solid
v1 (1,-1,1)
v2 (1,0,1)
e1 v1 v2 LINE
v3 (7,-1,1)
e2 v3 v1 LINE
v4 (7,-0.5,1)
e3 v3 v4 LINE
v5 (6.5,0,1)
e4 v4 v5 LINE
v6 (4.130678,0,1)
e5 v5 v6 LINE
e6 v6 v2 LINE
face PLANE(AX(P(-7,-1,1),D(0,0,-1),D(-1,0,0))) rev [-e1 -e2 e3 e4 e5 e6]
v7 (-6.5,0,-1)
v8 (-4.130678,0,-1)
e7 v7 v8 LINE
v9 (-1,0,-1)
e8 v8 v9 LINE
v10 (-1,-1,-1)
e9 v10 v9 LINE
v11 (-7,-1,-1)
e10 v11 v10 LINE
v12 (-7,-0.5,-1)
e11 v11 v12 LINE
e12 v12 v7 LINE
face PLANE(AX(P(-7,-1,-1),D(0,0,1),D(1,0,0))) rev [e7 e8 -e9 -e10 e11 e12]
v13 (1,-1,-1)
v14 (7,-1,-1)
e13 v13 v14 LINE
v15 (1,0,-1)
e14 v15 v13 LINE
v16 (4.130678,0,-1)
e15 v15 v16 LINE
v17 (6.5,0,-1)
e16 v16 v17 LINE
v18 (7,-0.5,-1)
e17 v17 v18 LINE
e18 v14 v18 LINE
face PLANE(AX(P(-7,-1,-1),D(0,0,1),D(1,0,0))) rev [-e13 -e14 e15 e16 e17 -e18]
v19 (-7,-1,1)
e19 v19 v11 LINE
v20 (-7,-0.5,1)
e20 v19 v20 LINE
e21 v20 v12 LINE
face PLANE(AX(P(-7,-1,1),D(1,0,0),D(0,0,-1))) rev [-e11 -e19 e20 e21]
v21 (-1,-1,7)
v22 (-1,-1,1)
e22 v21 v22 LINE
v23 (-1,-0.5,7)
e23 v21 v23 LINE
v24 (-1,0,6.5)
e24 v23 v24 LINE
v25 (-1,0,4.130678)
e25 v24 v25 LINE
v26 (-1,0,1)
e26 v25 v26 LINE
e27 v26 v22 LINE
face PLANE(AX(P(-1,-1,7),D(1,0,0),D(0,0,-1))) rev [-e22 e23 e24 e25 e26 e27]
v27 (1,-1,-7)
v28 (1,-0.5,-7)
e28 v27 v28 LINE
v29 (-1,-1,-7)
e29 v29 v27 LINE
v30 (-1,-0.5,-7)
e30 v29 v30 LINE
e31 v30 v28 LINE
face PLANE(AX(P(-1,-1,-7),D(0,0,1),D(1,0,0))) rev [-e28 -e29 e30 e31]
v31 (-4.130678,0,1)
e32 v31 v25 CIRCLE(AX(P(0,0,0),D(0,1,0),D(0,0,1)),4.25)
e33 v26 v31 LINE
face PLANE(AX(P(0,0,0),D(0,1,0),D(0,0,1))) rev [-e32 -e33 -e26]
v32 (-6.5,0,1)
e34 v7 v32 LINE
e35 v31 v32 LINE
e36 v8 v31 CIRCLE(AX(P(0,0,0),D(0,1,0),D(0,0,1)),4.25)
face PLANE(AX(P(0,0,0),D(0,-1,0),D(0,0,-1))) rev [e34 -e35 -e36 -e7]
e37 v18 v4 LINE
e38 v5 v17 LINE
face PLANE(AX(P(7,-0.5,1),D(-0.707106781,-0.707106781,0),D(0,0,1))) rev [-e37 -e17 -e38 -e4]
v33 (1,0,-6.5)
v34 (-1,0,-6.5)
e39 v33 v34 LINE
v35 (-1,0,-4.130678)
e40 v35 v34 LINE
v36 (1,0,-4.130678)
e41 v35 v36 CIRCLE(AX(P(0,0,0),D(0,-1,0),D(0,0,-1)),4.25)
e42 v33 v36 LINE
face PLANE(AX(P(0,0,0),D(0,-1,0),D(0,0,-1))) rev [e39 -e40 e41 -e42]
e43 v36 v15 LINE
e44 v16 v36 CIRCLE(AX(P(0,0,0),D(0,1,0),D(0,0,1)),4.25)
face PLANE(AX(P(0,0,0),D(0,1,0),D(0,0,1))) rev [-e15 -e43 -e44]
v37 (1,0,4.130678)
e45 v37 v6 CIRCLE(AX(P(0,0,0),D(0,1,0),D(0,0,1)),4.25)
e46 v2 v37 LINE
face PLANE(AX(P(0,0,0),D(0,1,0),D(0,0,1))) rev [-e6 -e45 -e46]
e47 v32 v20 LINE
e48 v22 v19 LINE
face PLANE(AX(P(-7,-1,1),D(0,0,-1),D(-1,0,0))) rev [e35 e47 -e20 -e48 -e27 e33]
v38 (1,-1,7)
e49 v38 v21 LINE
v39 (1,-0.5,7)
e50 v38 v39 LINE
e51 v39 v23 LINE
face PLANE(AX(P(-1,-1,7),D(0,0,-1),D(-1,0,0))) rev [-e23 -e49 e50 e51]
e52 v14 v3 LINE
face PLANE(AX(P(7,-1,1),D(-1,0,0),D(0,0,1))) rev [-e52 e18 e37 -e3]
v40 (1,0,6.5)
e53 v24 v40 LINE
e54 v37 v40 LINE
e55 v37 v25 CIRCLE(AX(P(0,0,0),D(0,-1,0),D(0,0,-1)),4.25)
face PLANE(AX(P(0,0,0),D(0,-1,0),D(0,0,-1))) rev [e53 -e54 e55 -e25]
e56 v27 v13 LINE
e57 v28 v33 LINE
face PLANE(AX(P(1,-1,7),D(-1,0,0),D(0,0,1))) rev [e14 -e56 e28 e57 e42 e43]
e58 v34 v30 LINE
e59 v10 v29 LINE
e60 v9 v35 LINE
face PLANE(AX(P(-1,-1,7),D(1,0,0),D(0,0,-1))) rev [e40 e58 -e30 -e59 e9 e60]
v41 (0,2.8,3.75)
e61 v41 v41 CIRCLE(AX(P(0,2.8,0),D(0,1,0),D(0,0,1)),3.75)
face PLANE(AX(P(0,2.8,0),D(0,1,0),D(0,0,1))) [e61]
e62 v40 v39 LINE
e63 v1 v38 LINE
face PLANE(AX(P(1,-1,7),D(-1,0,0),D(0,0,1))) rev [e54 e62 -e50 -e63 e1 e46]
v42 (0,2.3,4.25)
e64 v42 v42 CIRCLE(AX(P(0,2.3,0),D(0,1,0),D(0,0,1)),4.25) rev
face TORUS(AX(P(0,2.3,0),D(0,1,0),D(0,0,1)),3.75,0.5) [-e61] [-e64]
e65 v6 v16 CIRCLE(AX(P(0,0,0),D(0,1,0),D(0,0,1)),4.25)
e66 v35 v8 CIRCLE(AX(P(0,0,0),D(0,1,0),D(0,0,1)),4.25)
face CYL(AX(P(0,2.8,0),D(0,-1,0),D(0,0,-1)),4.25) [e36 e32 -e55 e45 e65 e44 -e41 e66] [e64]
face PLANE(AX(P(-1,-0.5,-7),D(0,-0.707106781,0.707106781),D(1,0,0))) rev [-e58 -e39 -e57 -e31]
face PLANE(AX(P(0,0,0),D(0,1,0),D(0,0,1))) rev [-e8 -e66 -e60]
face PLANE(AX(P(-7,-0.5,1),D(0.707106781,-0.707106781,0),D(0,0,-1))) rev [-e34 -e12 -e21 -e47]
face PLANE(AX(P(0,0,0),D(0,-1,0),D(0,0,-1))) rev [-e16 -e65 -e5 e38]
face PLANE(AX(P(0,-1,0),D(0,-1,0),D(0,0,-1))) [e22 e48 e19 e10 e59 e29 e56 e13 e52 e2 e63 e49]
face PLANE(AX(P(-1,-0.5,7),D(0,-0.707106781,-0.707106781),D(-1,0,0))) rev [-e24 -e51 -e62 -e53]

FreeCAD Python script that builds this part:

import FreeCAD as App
import Part
import Sketcher
from FreeCAD import Vector


def edges_at(feature, points):
    """Names of the edges that pass closest to the given points."""
    edges = feature.Shape.Edges
    near = lambda p: min(range(len(edges)), key=lambda i: edges[i].distToShape(Part.Vertex(*p))[0])
    return sorted({f"Edge{near(p) + 1}" for p in points})

doc = App.newDocument("Part")
body = doc.addObject("PartDesign::Body", "Body")

# Sketch on XZ plane
sketch1 = body.newObject("Sketcher::SketchObject", "Sketch")
sketch1.AttachmentSupport = (doc.getObject("XZ_Plane"), [""])
sketch1.MapMode = "FlatFace"
sketch1.addGeometry(Part.Circle(Vector(0, 0, 0), Vector(0, 0, 1), 4.2), False)
sketch1.addConstraint([
    Sketcher.Constraint("Coincident", 0, 3, -1, 1),
    Sketcher.Constraint("Diameter", 0, 8.5),
])
pad1 = body.newObject("PartDesign::Pad", "Pad")
pad1.Profile = sketch1
pad1.Length = 2.8
pad1.Reversed = True
doc.recompute()

fillet = body.newObject("PartDesign::Fillet", "Fillet")
fillet.Base = (pad1, edges_at(pad1, [(0, 2.8, -4.25)]))
fillet.Radius = 0.5

# Sketch on XZ plane
sketch2 = body.newObject("Sketcher::SketchObject", "Sketch001")
sketch2.AttachmentSupport = (doc.getObject("XZ_Plane"), [""])
sketch2.MapMode = "FlatFace"
sketch2.addGeometry([
    Part.LineSegment(Vector(-7, 1, 0), Vector(-7, -1, 0)),
    Part.LineSegment(Vector(-7, -1, 0), Vector(7, -1, 0)),
    Part.LineSegment(Vector(7, -1, 0), Vector(7, 1, 0)),
    Part.LineSegment(Vector(7, 1, 0), Vector(-7, 1, 0)),
], False)
sketch2.addConstraint([
    Sketcher.Constraint("Coincident", 0, 2, 1, 1),
    Sketcher.Constraint("Coincident", 1, 2, 2, 1),
    Sketcher.Constraint("Coincident", 2, 2, 3, 1),
    Sketcher.Constraint("Coincident", 3, 2, 0, 1),
    Sketcher.Constraint("Vertical", 0),
    Sketcher.Constraint("Horizontal", 1),
    Sketcher.Constraint("Vertical", 2),
    Sketcher.Constraint("Horizontal", 3),
    Sketcher.Constraint("Symmetric", 0, 2, 2, 2, -1, 1),
    Sketcher.Constraint("DistanceX", 1, 1, 1, 2, 14.0),
    Sketcher.Constraint("DistanceY", 0, 2, 0, 1, 2.0),
])
pad2 = body.newObject("PartDesign::Pad", "Pad001")
pad2.Profile = sketch2
pad2.Length = 1

# Sketch on XZ plane
sketch3 = body.newObject("Sketcher::SketchObject", "Sketch002")
sketch3.AttachmentSupport = (doc.getObject("XZ_Plane"), [""])
sketch3.MapMode = "FlatFace"
sketch3.addGeometry([
    Part.LineSegment(Vector(-1, 7, 0), Vector(-1, -7, 0)),
    Part.LineSegment(Vector(-1, -7, 0), Vector(1, -7, 0)),
    Part.LineSegment(Vector(1, -7, 0), Vector(1, 7, 0)),
    Part.LineSegment(Vector(1, 7, 0), Vector(-1, 7, 0)),
], False)
sketch3.addConstraint([
    Sketcher.Constraint("Coincident", 0, 2, 1, 1),
    Sketcher.Constraint("Coincident", 1, 2, 2, 1),
    Sketcher.Constraint("Coincident", 2, 2, 3, 1),
    Sketcher.Constraint("Coincident", 3, 2, 0, 1),
    Sketcher.Constraint("Vertical", 0),
    Sketcher.Constraint("Horizontal", 1),
    Sketcher.Constraint("Vertical", 2),
    Sketcher.Constraint("Horizontal", 3),
    Sketcher.Constraint("Symmetric", 0, 2, 2, 2, -1, 1),
    Sketcher.Constraint("DistanceX", 1, 1, 1, 2, 2.0),
    Sketcher.Constraint("DistanceY", 0, 2, 0, 1, 14.0),
])
pad3 = body.newObject("PartDesign::Pad", "Pad002")
pad3.Profile = sketch3
pad3.Length = 1
doc.recompute()

chamfer = body.newObject("PartDesign::Chamfer", "Chamfer")
chamfer.Base = (pad3, edges_at(pad3, [(0, 0, 7)]))
chamfer.Size = 0.5
doc.recompute()

chamfer2 = body.newObject("PartDesign::Chamfer", "Chamfer001")
chamfer2.Base = (chamfer, edges_at(chamfer, [(7, 0, 0)]))
chamfer2.Size = 0.5
doc.recompute()

chamfer3 = body.newObject("PartDesign::Chamfer", "Chamfer002")
chamfer3.Base = (chamfer2, edges_at(chamfer2, [(-7, 0, 0), (0, 0, -7)]))
chamfer3.Size = 0.5

doc.recompute()
